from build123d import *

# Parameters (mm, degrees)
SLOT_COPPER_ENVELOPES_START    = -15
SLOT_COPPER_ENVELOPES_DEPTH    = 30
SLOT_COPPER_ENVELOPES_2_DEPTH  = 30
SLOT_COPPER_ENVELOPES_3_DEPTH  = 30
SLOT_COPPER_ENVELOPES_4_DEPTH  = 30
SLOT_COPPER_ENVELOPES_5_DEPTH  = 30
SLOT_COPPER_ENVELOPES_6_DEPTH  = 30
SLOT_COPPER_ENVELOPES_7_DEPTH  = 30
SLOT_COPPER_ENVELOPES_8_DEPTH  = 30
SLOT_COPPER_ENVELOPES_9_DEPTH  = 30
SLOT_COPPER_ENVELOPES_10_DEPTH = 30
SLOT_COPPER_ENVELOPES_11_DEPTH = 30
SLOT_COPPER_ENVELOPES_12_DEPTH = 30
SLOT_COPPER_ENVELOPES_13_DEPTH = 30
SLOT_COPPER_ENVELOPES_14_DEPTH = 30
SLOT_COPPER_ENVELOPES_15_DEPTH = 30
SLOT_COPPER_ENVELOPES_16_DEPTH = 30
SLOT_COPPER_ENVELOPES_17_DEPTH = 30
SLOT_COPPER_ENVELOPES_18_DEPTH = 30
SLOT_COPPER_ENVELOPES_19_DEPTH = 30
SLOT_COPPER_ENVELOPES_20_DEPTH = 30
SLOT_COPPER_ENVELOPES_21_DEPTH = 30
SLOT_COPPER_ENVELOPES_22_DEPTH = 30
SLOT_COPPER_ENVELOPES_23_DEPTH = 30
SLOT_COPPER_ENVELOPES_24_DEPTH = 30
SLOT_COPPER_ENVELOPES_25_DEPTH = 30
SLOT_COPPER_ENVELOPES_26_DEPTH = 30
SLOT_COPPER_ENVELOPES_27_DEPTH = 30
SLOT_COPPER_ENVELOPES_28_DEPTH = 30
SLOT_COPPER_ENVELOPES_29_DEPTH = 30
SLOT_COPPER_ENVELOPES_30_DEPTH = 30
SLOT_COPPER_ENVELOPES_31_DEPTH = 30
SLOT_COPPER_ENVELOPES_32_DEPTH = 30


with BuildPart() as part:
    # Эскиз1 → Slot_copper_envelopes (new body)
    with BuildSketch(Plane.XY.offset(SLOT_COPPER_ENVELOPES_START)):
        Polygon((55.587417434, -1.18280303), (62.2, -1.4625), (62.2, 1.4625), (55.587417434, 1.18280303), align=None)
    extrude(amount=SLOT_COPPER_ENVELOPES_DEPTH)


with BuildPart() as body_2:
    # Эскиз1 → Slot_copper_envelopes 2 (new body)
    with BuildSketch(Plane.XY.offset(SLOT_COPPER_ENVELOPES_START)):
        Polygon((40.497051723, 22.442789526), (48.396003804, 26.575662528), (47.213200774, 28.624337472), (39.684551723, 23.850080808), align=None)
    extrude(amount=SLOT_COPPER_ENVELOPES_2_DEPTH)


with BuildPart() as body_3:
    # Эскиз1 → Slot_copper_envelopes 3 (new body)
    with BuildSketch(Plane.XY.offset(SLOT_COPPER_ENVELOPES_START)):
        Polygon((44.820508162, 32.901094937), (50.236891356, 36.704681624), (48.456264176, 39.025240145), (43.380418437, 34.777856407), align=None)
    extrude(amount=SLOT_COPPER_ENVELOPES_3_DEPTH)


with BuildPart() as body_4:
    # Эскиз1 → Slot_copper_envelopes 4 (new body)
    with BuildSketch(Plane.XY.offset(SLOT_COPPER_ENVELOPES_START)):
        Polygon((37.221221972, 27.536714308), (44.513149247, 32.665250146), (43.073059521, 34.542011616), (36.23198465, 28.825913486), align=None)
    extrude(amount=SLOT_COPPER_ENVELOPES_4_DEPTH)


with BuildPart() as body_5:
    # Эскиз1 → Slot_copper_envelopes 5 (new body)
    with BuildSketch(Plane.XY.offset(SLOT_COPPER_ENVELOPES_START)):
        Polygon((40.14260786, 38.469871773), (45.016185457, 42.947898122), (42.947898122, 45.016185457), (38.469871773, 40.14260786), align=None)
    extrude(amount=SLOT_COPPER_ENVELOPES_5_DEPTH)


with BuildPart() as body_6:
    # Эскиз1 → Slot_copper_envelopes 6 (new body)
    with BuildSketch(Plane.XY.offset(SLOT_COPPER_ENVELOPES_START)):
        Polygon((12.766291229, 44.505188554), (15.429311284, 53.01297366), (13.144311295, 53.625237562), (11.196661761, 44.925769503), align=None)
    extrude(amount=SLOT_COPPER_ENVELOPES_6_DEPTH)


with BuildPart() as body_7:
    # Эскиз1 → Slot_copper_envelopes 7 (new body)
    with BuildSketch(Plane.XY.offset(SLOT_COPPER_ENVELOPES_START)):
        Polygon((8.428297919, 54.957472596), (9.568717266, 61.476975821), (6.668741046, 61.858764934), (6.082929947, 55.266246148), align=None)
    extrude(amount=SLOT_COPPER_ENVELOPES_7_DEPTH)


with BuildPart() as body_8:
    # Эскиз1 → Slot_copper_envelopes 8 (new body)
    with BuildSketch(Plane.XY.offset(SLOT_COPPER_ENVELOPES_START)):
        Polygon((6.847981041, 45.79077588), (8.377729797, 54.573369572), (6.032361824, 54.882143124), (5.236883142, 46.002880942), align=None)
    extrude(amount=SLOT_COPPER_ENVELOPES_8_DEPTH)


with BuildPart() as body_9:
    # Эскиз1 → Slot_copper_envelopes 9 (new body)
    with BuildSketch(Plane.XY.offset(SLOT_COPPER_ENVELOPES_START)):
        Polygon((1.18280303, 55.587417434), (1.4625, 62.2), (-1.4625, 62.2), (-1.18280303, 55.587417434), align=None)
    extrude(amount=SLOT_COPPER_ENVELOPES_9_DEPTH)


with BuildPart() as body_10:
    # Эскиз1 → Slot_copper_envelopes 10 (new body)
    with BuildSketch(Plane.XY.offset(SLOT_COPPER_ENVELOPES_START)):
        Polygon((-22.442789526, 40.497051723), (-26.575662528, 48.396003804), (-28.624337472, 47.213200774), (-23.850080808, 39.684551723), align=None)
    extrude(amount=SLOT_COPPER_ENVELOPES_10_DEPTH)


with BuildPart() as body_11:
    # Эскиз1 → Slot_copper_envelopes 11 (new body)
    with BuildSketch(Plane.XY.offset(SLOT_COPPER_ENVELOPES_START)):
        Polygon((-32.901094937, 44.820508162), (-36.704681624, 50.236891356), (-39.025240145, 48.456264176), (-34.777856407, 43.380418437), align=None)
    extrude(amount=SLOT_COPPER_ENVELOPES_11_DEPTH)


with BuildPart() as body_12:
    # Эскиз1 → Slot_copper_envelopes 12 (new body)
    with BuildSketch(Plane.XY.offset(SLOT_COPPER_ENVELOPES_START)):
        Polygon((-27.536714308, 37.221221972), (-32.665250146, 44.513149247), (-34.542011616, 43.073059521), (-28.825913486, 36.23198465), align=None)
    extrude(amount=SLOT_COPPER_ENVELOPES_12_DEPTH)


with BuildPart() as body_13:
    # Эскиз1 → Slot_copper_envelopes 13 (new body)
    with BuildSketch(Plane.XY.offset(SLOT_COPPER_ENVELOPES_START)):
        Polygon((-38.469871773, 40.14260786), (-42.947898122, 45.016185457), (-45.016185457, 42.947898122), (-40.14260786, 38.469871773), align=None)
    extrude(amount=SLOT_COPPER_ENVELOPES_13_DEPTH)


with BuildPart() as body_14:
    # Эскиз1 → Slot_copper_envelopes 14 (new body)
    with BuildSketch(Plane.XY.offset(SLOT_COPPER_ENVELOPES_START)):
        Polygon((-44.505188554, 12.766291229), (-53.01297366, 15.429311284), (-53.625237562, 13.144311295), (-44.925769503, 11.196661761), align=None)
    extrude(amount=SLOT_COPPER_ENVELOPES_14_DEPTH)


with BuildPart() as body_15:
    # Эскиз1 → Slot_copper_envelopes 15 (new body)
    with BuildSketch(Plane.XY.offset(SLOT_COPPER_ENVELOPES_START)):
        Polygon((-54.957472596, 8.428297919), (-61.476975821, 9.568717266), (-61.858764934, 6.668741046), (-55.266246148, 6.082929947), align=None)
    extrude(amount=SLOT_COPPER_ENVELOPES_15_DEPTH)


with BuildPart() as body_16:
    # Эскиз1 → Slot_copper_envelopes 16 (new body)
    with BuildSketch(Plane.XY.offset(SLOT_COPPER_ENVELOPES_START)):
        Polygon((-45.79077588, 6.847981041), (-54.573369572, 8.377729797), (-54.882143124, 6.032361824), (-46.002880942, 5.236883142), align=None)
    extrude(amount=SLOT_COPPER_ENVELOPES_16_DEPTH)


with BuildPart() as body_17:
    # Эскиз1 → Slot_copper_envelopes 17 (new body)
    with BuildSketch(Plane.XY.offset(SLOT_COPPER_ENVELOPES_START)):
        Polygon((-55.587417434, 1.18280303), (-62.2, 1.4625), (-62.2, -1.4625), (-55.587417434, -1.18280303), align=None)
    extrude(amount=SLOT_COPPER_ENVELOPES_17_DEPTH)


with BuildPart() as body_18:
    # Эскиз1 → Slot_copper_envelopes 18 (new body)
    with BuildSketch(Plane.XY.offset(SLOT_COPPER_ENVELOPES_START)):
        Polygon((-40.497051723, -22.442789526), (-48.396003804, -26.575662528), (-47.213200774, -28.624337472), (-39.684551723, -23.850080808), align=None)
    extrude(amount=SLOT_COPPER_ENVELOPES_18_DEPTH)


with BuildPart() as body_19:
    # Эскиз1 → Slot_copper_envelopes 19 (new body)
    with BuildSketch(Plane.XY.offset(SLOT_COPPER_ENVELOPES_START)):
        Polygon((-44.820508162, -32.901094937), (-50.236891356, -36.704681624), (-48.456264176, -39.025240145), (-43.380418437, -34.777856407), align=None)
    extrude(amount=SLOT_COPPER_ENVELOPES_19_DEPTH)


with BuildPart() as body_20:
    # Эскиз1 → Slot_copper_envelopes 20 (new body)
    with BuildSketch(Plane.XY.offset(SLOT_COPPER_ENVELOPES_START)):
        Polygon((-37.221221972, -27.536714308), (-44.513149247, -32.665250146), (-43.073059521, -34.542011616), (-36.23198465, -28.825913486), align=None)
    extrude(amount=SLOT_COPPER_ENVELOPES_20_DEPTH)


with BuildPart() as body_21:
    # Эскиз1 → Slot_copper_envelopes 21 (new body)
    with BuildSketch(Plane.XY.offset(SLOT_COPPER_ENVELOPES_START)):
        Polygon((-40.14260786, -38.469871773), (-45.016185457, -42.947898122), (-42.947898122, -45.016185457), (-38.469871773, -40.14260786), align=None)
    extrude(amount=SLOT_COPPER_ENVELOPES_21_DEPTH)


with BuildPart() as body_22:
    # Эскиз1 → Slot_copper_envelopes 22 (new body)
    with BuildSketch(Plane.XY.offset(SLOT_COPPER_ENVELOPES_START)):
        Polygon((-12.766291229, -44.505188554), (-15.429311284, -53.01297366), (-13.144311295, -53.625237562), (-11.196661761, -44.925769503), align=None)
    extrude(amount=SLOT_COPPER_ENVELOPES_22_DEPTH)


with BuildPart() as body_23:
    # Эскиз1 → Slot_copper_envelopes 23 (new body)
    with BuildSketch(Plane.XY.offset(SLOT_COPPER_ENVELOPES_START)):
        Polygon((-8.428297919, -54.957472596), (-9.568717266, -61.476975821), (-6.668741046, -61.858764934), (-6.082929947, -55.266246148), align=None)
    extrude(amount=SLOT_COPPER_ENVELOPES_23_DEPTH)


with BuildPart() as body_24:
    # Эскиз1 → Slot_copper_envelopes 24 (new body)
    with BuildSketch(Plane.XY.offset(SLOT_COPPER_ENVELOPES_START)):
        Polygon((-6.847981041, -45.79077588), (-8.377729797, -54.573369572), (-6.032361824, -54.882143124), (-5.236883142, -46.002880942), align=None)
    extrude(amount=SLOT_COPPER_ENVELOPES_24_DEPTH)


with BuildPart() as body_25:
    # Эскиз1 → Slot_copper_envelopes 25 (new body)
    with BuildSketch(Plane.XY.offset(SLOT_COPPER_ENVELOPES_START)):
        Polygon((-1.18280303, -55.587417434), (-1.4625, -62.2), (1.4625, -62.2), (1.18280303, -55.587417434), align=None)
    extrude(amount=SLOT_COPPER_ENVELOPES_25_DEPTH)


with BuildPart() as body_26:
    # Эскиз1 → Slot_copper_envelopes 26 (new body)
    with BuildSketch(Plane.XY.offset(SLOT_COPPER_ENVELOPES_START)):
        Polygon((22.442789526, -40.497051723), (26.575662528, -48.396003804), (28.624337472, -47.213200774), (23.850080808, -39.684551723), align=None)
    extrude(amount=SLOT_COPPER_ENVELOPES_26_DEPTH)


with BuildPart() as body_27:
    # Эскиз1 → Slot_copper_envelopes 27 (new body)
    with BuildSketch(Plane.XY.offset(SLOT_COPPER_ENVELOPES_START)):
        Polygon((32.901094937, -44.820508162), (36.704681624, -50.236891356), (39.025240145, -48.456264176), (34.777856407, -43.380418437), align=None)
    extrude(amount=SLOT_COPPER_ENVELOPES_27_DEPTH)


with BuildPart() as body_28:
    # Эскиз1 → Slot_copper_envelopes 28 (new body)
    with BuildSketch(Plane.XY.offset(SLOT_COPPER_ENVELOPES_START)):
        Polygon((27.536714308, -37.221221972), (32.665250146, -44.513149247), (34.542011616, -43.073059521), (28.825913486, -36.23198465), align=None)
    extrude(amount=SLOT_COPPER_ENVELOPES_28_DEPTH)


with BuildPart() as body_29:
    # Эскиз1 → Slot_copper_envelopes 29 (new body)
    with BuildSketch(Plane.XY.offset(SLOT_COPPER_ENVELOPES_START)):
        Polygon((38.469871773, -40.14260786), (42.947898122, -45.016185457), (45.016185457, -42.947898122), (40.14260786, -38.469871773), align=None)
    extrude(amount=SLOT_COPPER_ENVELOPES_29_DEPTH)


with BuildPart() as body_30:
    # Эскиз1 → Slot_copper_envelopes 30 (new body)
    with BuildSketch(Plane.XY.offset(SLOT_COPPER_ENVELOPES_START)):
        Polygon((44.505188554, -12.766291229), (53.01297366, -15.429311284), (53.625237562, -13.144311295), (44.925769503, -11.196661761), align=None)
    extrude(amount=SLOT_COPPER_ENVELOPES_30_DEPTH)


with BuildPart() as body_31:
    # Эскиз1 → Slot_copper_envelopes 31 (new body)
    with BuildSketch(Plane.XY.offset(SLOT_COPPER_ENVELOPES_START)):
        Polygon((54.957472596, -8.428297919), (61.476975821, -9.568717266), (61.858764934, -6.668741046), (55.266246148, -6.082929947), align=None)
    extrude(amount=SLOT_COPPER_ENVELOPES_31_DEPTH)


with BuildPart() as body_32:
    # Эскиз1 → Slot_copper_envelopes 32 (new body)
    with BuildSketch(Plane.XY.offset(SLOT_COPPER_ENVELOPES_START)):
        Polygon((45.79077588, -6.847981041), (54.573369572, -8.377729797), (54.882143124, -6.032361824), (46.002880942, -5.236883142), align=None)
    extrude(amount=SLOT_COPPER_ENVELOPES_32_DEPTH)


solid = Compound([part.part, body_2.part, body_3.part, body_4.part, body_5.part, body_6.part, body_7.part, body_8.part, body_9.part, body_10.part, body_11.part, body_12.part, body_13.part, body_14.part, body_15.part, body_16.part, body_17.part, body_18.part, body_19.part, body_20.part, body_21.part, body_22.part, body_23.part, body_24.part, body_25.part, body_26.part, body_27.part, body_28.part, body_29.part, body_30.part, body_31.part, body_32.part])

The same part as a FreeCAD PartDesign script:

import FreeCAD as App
import Part
import Sketcher
from FreeCAD import Vector
Q = App.Units.Quantity


def add_polygon(sketch, points):
    """Adds a closed chain of lines whose ends are joined by coincident constraints."""
    first, n = sketch.GeometryCount, len(points)
    for a, b in zip(points, points[1:] + points[:1]):
        sketch.addGeometry(Part.LineSegment(App.Vector(*a, 0), App.Vector(*b, 0)), False)
    for i in range(n):
        sketch.addConstraint(Sketcher.Constraint("Coincident", first + i, 2, first + (i + 1) % n, 1))

doc = App.newDocument("Part")
params = doc.addObject("Spreadsheet::Sheet", "Params")
for row, (alias, value) in enumerate([
    ("pad1_length", "30 mm"),
    ("pad2_length", "30 mm"),
    ("pad3_length", "30 mm"),
    ("pad4_length", "30 mm"),
    ("pad5_length", "30 mm"),
    ("pad6_length", "30 mm"),
    ("pad7_length", "30 mm"),
    ("pad8_length", "30 mm"),
    ("pad9_length", "30 mm"),
    ("pad10_length", "30 mm"),
    ("pad11_length", "30 mm"),
    ("pad12_length", "30 mm"),
    ("pad13_length", "30 mm"),
    ("pad14_length", "30 mm"),
    ("pad15_length", "30 mm"),
    ("pad16_length", "30 mm"),
    ("pad17_length", "30 mm"),
    ("pad18_length", "30 mm"),
    ("pad19_length", "30 mm"),
    ("pad20_length", "30 mm"),
    ("pad21_length", "30 mm"),
    ("pad22_length", "30 mm"),
    ("pad23_length", "30 mm"),
    ("pad24_length", "30 mm"),
    ("pad25_length", "30 mm"),
    ("pad26_length", "30 mm"),
    ("pad27_length", "30 mm"),
    ("pad28_length", "30 mm"),
    ("pad29_length", "30 mm"),
    ("pad30_length", "30 mm"),
    ("pad31_length", "30 mm"),
    ("pad32_length", "30 mm"),
], start=1):
    params.set(f"A{row}", alias)
    params.set(f"B{row}", "=" + value)
    params.setAlias(f"B{row}", alias)

body = doc.addObject("PartDesign::Body", "Body")

# Sketch on XY plane
sketch1 = body.newObject("Sketcher::SketchObject", "Sketch")
sketch1.AttachmentSupport = (doc.getObject("XY_Plane"), [""])
sketch1.MapMode = "FlatFace"
sketch1.AttachmentOffset = App.Placement(Vector(0, 0, -15), App.Rotation())
add_polygon(sketch1, [(55.587417, -1.182803), (62.2, -1.4625), (62.2, 1.4625), (55.587417, 1.182803)])  # lines 0-3
sketch1.addConstraint(Sketcher.Constraint("Vertical", 1))
sketch1.addConstraint(Sketcher.Constraint("Vertical", 3))
sketch1.addConstraint(Sketcher.Constraint("Equal", 0, 2))
sketch1.addConstraint(Sketcher.Constraint("DistanceX", -1, 1, 0, 2, 62.2))
sketch1.addConstraint(Sketcher.Constraint("DistanceY", 1, 1, 1, 2, 2.925))
sketch1.addConstraint(Sketcher.Constraint("DistanceY", 0, 2, -1, 1, 1.4625))
sketch1.addConstraint(Sketcher.Constraint("DistanceY", 3, 2, 3, 1, 2.365606))
sketch1.addConstraint(Sketcher.Constraint("Distance", 0, 6.618495))
pad1 = body.newObject("PartDesign::Pad", "Pad")
pad1.Profile = sketch1
pad1.setExpression("Length", "Params.pad1_length")
body2 = doc.addObject("PartDesign::Body", "Body001")

# Sketch on XY plane
sketch2 = body2.newObject("Sketcher::SketchObject", "Sketch001")
sketch2.AttachmentSupport = (doc.getObject("XY_Plane001"), [""])
sketch2.MapMode = "FlatFace"
sketch2.AttachmentOffset = App.Placement(Vector(0, 0, -15), App.Rotation())
add_polygon(sketch2, [(40.497052, 22.44279), (48.396004, 26.575663), (47.213201, 28.624337), (39.684552, 23.850081)])  # lines 0-3
sketch2.addConstraint(Sketcher.Constraint("Parallel", 1, 3))
sketch2.addConstraint(Sketcher.Constraint("Equal", 0, 2))
sketch2.addConstraint(Sketcher.Constraint("Angle", 1, Q("120 deg")))
sketch2.addConstraint(Sketcher.Constraint("Distance", 3, 1.625))
sketch2.addConstraint(Sketcher.Constraint("DistanceX", -1, 1, 1, 2, 47.213201))
sketch2.addConstraint(Sketcher.Constraint("DistanceX", -1, 1, 2, 2, 39.684552))
sketch2.addConstraint(Sketcher.Constraint("DistanceY", -1, 1, 2, 2, 23.850081))
sketch2.addConstraint(Sketcher.Constraint("DistanceY", 2, 2, 0, 2, 2.725582))
pad2 = body2.newObject("PartDesign::Pad", "Pad001")
pad2.Profile = sketch2
pad2.setExpression("Length", "Params.pad2_length")
body3 = doc.addObject("PartDesign::Body", "Body002")

# Sketch on XY plane
sketch3 = body3.newObject("Sketcher::SketchObject", "Sketch002")
sketch3.AttachmentSupport = (doc.getObject("XY_Plane002"), [""])
sketch3.MapMode = "FlatFace"
sketch3.AttachmentOffset = App.Placement(Vector(0, 0, -15), App.Rotation())
add_polygon(sketch3, [(44.820508, 32.901095), (50.236891, 36.704682), (48.456264, 39.02524), (43.380418, 34.777856)])  # lines 0-3
sketch3.addConstraint(Sketcher.Constraint("Parallel", 1, 3))
sketch3.addConstraint(Sketcher.Constraint("Equal", 0, 2))
sketch3.addConstraint(Sketcher.Constraint("Angle", 1, Q("127.5 deg")))
sketch3.addConstraint(Sketcher.Constraint("Distance", 1, 2.925))
sketch3.addConstraint(Sketcher.Constraint("DistanceX", -1, 1, 0, 2, 50.236891))
sketch3.addConstraint(Sketcher.Constraint("DistanceY", -1, 1, 0, 2, 36.704682))
sketch3.addConstraint(Sketcher.Constraint("DistanceX", -1, 1, 2, 2, 43.380418))
sketch3.addConstraint(Sketcher.Constraint("DistanceX", -1, 1, 3, 2, 44.820508))
pad3 = body3.newObject("PartDesign::Pad", "Pad002")
pad3.Profile = sketch3
pad3.setExpression("Length", "Params.pad3_length")
body4 = doc.addObject("PartDesign::Body", "Body003")

# Sketch on XY plane
sketch4 = body4.newObject("Sketcher::SketchObject", "Sketch003")
sketch4.AttachmentSupport = (doc.getObject("XY_Plane003"), [""])
sketch4.MapMode = "FlatFace"
sketch4.AttachmentOffset = App.Placement(Vector(0, 0, -15), App.Rotation())
add_polygon(sketch4, [(37.221222, 27.536714), (44.513149, 32.66525), (43.07306, 34.542012), (36.231985, 28.825913)])  # lines 0-3
sketch4.addConstraint(Sketcher.Constraint("Parallel", 1, 3))
sketch4.addConstraint(Sketcher.Constraint("Equal", 0, 2))
sketch4.addConstraint(Sketcher.Constraint("Angle", 1, Q("127.5 deg")))
sketch4.addConstraint(Sketcher.Constraint("Distance", 3, 1.625))
sketch4.addConstraint(Sketcher.Constraint("DistanceY", 2, 2, 1, 2, 5.716098))
sketch4.addConstraint(Sketcher.Constraint("DistanceX", -1, 1, 0, 2, 44.513149))
sketch4.addConstraint(Sketcher.Constraint("DistanceY", -1, 1, 0, 2, 32.66525))
sketch4.addConstraint(Sketcher.Constraint("DistanceX", -1, 1, 1, 2, 43.07306))
pad4 = body4.newObject("PartDesign::Pad", "Pad003")
pad4.Profile = sketch4
pad4.setExpression("Length", "Params.pad4_length")
body5 = doc.addObject("PartDesign::Body", "Body004")

# Sketch on XY plane
sketch5 = body5.newObject("Sketcher::SketchObject", "Sketch004")
sketch5.AttachmentSupport = (doc.getObject("XY_Plane004"), [""])
sketch5.MapMode = "FlatFace"
sketch5.AttachmentOffset = App.Placement(Vector(0, 0, -15), App.Rotation())
add_polygon(sketch5, [(40.142608, 38.469872), (45.016185, 42.947898), (42.947898, 45.016185), (38.469872, 40.142608)])  # lines 0-3
sketch5.addConstraint(Sketcher.Constraint("Parallel", 1, 3))
sketch5.addConstraint(Sketcher.Constraint("Equal", 0, 2))
sketch5.addConstraint(Sketcher.Constraint("Angle", 1, Q("135 deg")))
sketch5.addConstraint(Sketcher.Constraint("Distance", 1, 2.925))
sketch5.addConstraint(Sketcher.Constraint("DistanceY", -1, 1, 0, 2, 42.947898))
sketch5.addConstraint(Sketcher.Constraint("DistanceX", -1, 1, 1, 2, 42.947898))
sketch5.addConstraint(Sketcher.Constraint("DistanceX", -1, 1, 2, 2, 38.469872))
sketch5.addConstraint(Sketcher.Constraint("DistanceY", 2, 2, 0, 2, 2.80529))
pad5 = body5.newObject("PartDesign::Pad", "Pad004")
pad5.Profile = sketch5
pad5.setExpression("Length", "Params.pad5_length")
body6 = doc.addObject("PartDesign::Body", "Body005")

# Sketch on XY plane
sketch6 = body6.newObject("Sketcher::SketchObject", "Sketch005")
sketch6.AttachmentSupport = (doc.getObject("XY_Plane005"), [""])
sketch6.MapMode = "FlatFace"
sketch6.AttachmentOffset = App.Placement(Vector(0, 0, -15), App.Rotation())
add_polygon(sketch6, [(12.766291, 44.505189), (15.429311, 53.012974), (13.144311, 53.625238), (11.196662, 44.92577)])  # lines 0-3
sketch6.addConstraint(Sketcher.Constraint("Parallel", 1, 3))
sketch6.addConstraint(Sketcher.Constraint("Equal", 0, 2))
sketch6.addConstraint(Sketcher.Constraint("Angle", 1, Q("165 deg")))
sketch6.addConstraint(Sketcher.Constraint("Distance", 3, 1.625))
sketch6.addConstraint(Sketcher.Constraint("DistanceX", 1, 2, 0, 2, 2.285))
sketch6.addConstraint(Sketcher.Constraint("DistanceX", -1, 1, 0, 2, 15.429311))
sketch6.addConstraint(Sketcher.Constraint("DistanceX", -1, 1, 2, 2, 11.196662))
sketch6.addConstraint(Sketcher.Constraint("DistanceY", -1, 1, 2, 2, 44.92577))
pad6 = body6.newObject("PartDesign::Pad", "Pad005")
pad6.Profile = sketch6
pad6.setExpression("Length", "Params.pad6_length")
body7 = doc.addObject("PartDesign::Body", "Body006")

# Sketch on XY plane
sketch7 = body7.newObject("Sketcher::SketchObject", "Sketch006")
sketch7.AttachmentSupport = (doc.getObject("XY_Plane006"), [""])
sketch7.MapMode = "FlatFace"
sketch7.AttachmentOffset = App.Placement(Vector(0, 0, -15), App.Rotation())
add_polygon(sketch7, [(8.428298, 54.957473), (9.568717, 61.476976), (6.668741, 61.858765), (6.08293, 55.266246)])  # lines 0-3
sketch7.addConstraint(Sketcher.Constraint("Parallel", 1, 3))
sketch7.addConstraint(Sketcher.Constraint("Equal", 0, 2))
sketch7.addConstraint(Sketcher.Constraint("Angle", 1, Q("172.5 deg")))
sketch7.addConstraint(Sketcher.Constraint("Distance", 1, 2.925))
sketch7.addConstraint(Sketcher.Constraint("DistanceX", -1, 1, 1, 2, 6.668741))
sketch7.addConstraint(Sketcher.Constraint("DistanceX", -1, 1, 2, 2, 6.08293))
sketch7.addConstraint(Sketcher.Constraint("DistanceY", 2, 2, 1, 2, 6.592519))
sketch7.addConstraint(Sketcher.Constraint("DistanceY", -1, 1, 0, 2, 61.476976))
pad7 = body7.newObject("PartDesign::Pad", "Pad006")
pad7.Profile = sketch7
pad7.setExpression("Length", "Params.pad7_length")
body8 = doc.addObject("PartDesign::Body", "Body007")

# Sketch on XY plane
sketch8 = body8.newObject("Sketcher::SketchObject", "Sketch007")
sketch8.AttachmentSupport = (doc.getObject("XY_Plane007"), [""])
sketch8.MapMode = "FlatFace"
sketch8.AttachmentOffset = App.Placement(Vector(0, 0, -15), App.Rotation())
add_polygon(sketch8, [(6.847981, 45.790776), (8.37773, 54.57337), (6.032362, 54.882143), (5.236883, 46.002881)])  # lines 0-3
sketch8.addConstraint(Sketcher.Constraint("Parallel", 1, 3))
sketch8.addConstraint(Sketcher.Constraint("Equal", 0, 2))
sketch8.addConstraint(Sketcher.Constraint("Angle", 1, Q("172.5 deg")))
sketch8.addConstraint(Sketcher.Constraint("Distance", 3, 1.625))
sketch8.addConstraint(Sketcher.Constraint("DistanceX", -1, 1, 0, 2, 8.37773))
sketch8.addConstraint(Sketcher.Constraint("DistanceY", -1, 1, 0, 2, 54.57337))
sketch8.addConstraint(Sketcher.Constraint("DistanceX", -1, 1, 1, 2, 6.032362))
sketch8.addConstraint(Sketcher.Constraint("DistanceY", -1, 1, 2, 2, 46.002881))
pad8 = body8.newObject("PartDesign::Pad", "Pad007")
pad8.Profile = sketch8
pad8.setExpression("Length", "Params.pad8_length")
body9 = doc.addObject("PartDesign::Body", "Body008")

# Sketch on XY plane
sketch9 = body9.newObject("Sketcher::SketchObject", "Sketch008")
sketch9.AttachmentSupport = (doc.getObject("XY_Plane008"), [""])
sketch9.MapMode = "FlatFace"
sketch9.AttachmentOffset = App.Placement(Vector(0, 0, -15), App.Rotation())
add_polygon(sketch9, [(1.182803, 55.587417), (1.4625, 62.2), (-1.4625, 62.2), (-1.182803, 55.587417)])  # lines 0-3
sketch9.addConstraint(Sketcher.Constraint("Horizontal", 1))
sketch9.addConstraint(Sketcher.Constraint("Horizontal", 3))
sketch9.addConstraint(Sketcher.Constraint("Equal", 0, 2))
sketch9.addConstraint(Sketcher.Constraint("DistanceY", -1, 1, 0, 2, 62.2))
sketch9.addConstraint(Sketcher.Constraint("DistanceX", 1, 2, 1, 1, 2.925))
sketch9.addConstraint(Sketcher.Constraint("DistanceX", -1, 1, 0, 2, 1.4625))
sketch9.addConstraint(Sketcher.Constraint("DistanceX", 3, 1, 3, 2, 2.365606))
sketch9.addConstraint(Sketcher.Constraint("Distance", 0, 6.618495))
pad9 = body9.newObject("PartDesign::Pad", "Pad008")
pad9.Profile = sketch9
pad9.setExpression("Length", "Params.pad9_length")
body10 = doc.addObject("PartDesign::Body", "Body009")

# Sketch on XY plane
sketch10 = body10.newObject("Sketcher::SketchObject", "Sketch009")
sketch10.AttachmentSupport = (doc.getObject("XY_Plane009"), [""])
sketch10.MapMode = "FlatFace"
sketch10.AttachmentOffset = App.Placement(Vector(0, 0, -15), App.Rotation())
add_polygon(sketch10, [(-22.44279, 40.497052), (-26.575663, 48.396004), (-28.624337, 47.213201), (-23.850081, 39.684552)])  # lines 0-3
sketch10.addConstraint(Sketcher.Constraint("Parallel", 1, 3))
sketch10.addConstraint(Sketcher.Constraint("Equal", 0, 2))
sketch10.addConstraint(Sketcher.Constraint("Angle", 1, Q("-150 deg")))
sketch10.addConstraint(Sketcher.Constraint("Distance", 3, 1.625))
sketch10.addConstraint(Sketcher.Constraint("DistanceY", -1, 1, 1, 2, 47.213201))
sketch10.addConstraint(Sketcher.Constraint("DistanceX", 2, 2, -1, 1, 23.850081))
sketch10.addConstraint(Sketcher.Constraint("DistanceY", -1, 1, 2, 2, 39.684552))
sketch10.addConstraint(Sketcher.Constraint("DistanceX", 0, 2, 2, 2, 2.725582))
pad10 = body10.newObject("PartDesign::Pad", "Pad009")
pad10.Profile = sketch10
pad10.setExpression("Length", "Params.pad10_length")
body11 = doc.addObject("PartDesign::Body", "Body010")

# Sketch on XY plane
sketch11 = body11.newObject("Sketcher::SketchObject", "Sketch010")
sketch11.AttachmentSupport = (doc.getObject("XY_Plane010"), [""])
sketch11.MapMode = "FlatFace"
sketch11.AttachmentOffset = App.Placement(Vector(0, 0, -15), App.Rotation())
add_polygon(sketch11, [(-32.901095, 44.820508), (-36.704682, 50.236891), (-39.02524, 48.456264), (-34.777856, 43.380418)])  # lines 0-3
sketch11.addConstraint(Sketcher.Constraint("Parallel", 1, 3))
sketch11.addConstraint(Sketcher.Constraint("Equal", 0, 2))
sketch11.addConstraint(Sketcher.Constraint("Angle", 1, Q("-142.5 deg")))
sketch11.addConstraint(Sketcher.Constraint("Distance", 1, 2.925))
sketch11.addConstraint(Sketcher.Constraint("DistanceX", 0, 2, -1, 1, 36.704682))
sketch11.addConstraint(Sketcher.Constraint("DistanceY", -1, 1, 0, 2, 50.236891))
sketch11.addConstraint(Sketcher.Constraint("DistanceY", -1, 1, 2, 2, 43.380418))
sketch11.addConstraint(Sketcher.Constraint("DistanceY", -1, 1, 3, 2, 44.820508))
pad11 = body11.newObject("PartDesign::Pad", "Pad010")
pad11.Profile = sketch11
pad11.setExpression("Length", "Params.pad11_length")
body12 = doc.addObject("PartDesign::Body", "Body011")

# Sketch on XY plane
sketch12 = body12.newObject("Sketcher::SketchObject", "Sketch011")
sketch12.AttachmentSupport = (doc.getObject("XY_Plane011"), [""])
sketch12.MapMode = "FlatFace"
sketch12.AttachmentOffset = App.Placement(Vector(0, 0, -15), App.Rotation())
add_polygon(sketch12, [(-27.536714, 37.221222), (-32.66525, 44.513149), (-34.542012, 43.07306), (-28.825913, 36.231985)])  # lines 0-3
sketch12.addConstraint(Sketcher.Constraint("Parallel", 1, 3))
sketch12.addConstraint(Sketcher.Constraint("Equal", 0, 2))
sketch12.addConstraint(Sketcher.Constraint("Angle", 1, Q("-142.5 deg")))
sketch12.addConstraint(Sketcher.Constraint("Distance", 3, 1.625))
sketch12.addConstraint(Sketcher.Constraint("DistanceX", 1, 2, 2, 2, 5.716098))
sketch12.addConstraint(Sketcher.Constraint("DistanceX", 0, 2, -1, 1, 32.66525))
sketch12.addConstraint(Sketcher.Constraint("DistanceY", -1, 1, 0, 2, 44.513149))
sketch12.addConstraint(Sketcher.Constraint("DistanceX", 1, 2, -1, 1, 34.542012))
pad12 = body12.newObject("PartDesign::Pad", "Pad011")
pad12.Profile = sketch12
pad12.setExpression("Length", "Params.pad12_length")
body13 = doc.addObject("PartDesign::Body", "Body012")

# Sketch on XY plane
sketch13 = body13.newObject("Sketcher::SketchObject", "Sketch012")
sketch13.AttachmentSupport = (doc.getObject("XY_Plane012"), [""])
sketch13.MapMode = "FlatFace"
sketch13.AttachmentOffset = App.Placement(Vector(0, 0, -15), App.Rotation())
add_polygon(sketch13, [(-38.469872, 40.142608), (-42.947898, 45.016185), (-45.016185, 42.947898), (-40.142608, 38.469872)])  # lines 0-3
sketch13.addConstraint(Sketcher.Constraint("Parallel", 1, 3))
sketch13.addConstraint(Sketcher.Constraint("Equal", 0, 2))
sketch13.addConstraint(Sketcher.Constraint("Angle", 1, Q("-135 deg")))
sketch13.addConstraint(Sketcher.Constraint("Distance", 1, 2.925))
sketch13.addConstraint(Sketcher.Constraint("DistanceX", 0, 2, -1, 1, 42.947898))
sketch13.addConstraint(Sketcher.Constraint("DistanceY", -1, 1, 1, 2, 42.947898))
sketch13.addConstraint(Sketcher.Constraint("DistanceY", -1, 1, 2, 2, 38.469872))
sketch13.addConstraint(Sketcher.Constraint("DistanceX", 0, 2, 2, 2, 2.80529))
pad13 = body13.newObject("PartDesign::Pad", "Pad012")
pad13.Profile = sketch13
pad13.setExpression("Length", "Params.pad13_length")
body14 = doc.addObject("PartDesign::Body", "Body013")

# Sketch on XY plane
sketch14 = body14.newObject("Sketcher::SketchObject", "Sketch013")
sketch14.AttachmentSupport = (doc.getObject("XY_Plane013"), [""])
sketch14.MapMode = "FlatFace"
sketch14.AttachmentOffset = App.Placement(Vector(0, 0, -15), App.Rotation())
add_polygon(sketch14, [(-44.505189, 12.766291), (-53.012974, 15.429311), (-53.625238, 13.144311), (-44.92577, 11.196662)])  # lines 0-3
sketch14.addConstraint(Sketcher.Constraint("Parallel", 1, 3))
sketch14.addConstraint(Sketcher.Constraint("Equal", 0, 2))
sketch14.addConstraint(Sketcher.Constraint("Angle", 1, Q("-105 deg")))
sketch14.addConstraint(Sketcher.Constraint("Distance", 3, 1.625))
sketch14.addConstraint(Sketcher.Constraint("DistanceY", 1, 2, 0, 2, 2.285))
sketch14.addConstraint(Sketcher.Constraint("DistanceY", -1, 1, 0, 2, 15.429311))
sketch14.addConstraint(Sketcher.Constraint("DistanceX", 2, 2, -1, 1, 44.92577))
sketch14.addConstraint(Sketcher.Constraint("DistanceY", -1, 1, 2, 2, 11.196662))
pad14 = body14.newObject("PartDesign::Pad", "Pad013")
pad14.Profile = sketch14
pad14.setExpression("Length", "Params.pad14_length")
body15 = doc.addObject("PartDesign::Body", "Body014")

# Sketch on XY plane
sketch15 = body15.newObject("Sketcher::SketchObject", "Sketch014")
sketch15.AttachmentSupport = (doc.getObject("XY_Plane014"), [""])
sketch15.MapMode = "FlatFace"
sketch15.AttachmentOffset = App.Placement(Vector(0, 0, -15), App.Rotation())
add_polygon(sketch15, [(-54.957473, 8.428298), (-61.476976, 9.568717), (-61.858765, 6.668741), (-55.266246, 6.08293)])  # lines 0-3
sketch15.addConstraint(Sketcher.Constraint("Parallel", 1, 3))
sketch15.addConstraint(Sketcher.Constraint("Equal", 0, 2))
sketch15.addConstraint(Sketcher.Constraint("Angle", 1, Q("-97.5 deg")))
sketch15.addConstraint(Sketcher.Constraint("Distance", 1, 2.925))
sketch15.addConstraint(Sketcher.Constraint("DistanceY", -1, 1, 1, 2, 6.668741))
sketch15.addConstraint(Sketcher.Constraint("DistanceY", -1, 1, 2, 2, 6.08293))
sketch15.addConstraint(Sketcher.Constraint("DistanceX", 1, 2, 2, 2, 6.592519))
sketch15.addConstraint(Sketcher.Constraint("DistanceX", 0, 2, -1, 1, 61.476976))
pad15 = body15.newObject("PartDesign::Pad", "Pad014")
pad15.Profile = sketch15
pad15.setExpression("Length", "Params.pad15_length")
body16 = doc.addObject("PartDesign::Body", "Body015")

# Sketch on XY plane
sketch16 = body16.newObject("Sketcher::SketchObject", "Sketch015")
sketch16.AttachmentSupport = (doc.getObject("XY_Plane015"), [""])
sketch16.MapMode = "FlatFace"
sketch16.AttachmentOffset = App.Placement(Vector(0, 0, -15), App.Rotation())
add_polygon(sketch16, [(-45.790776, 6.847981), (-54.57337, 8.37773), (-54.882143, 6.032362), (-46.002881, 5.236883)])  # lines 0-3
sketch16.addConstraint(Sketcher.Constraint("Parallel", 1, 3))
sketch16.addConstraint(Sketcher.Constraint("Equal", 0, 2))
sketch16.addConstraint(Sketcher.Constraint("Angle", 1, Q("-97.5 deg")))
sketch16.addConstraint(Sketcher.Constraint("Distance", 3, 1.625))
sketch16.addConstraint(Sketcher.Constraint("DistanceX", 0, 2, -1, 1, 54.57337))
sketch16.addConstraint(Sketcher.Constraint("DistanceY", -1, 1, 0, 2, 8.37773))
sketch16.addConstraint(Sketcher.Constraint("DistanceY", -1, 1, 1, 2, 6.032362))
sketch16.addConstraint(Sketcher.Constraint("DistanceX", 2, 2, -1, 1, 46.002881))
pad16 = body16.newObject("PartDesign::Pad", "Pad015")
pad16.Profile = sketch16
pad16.setExpression("Length", "Params.pad16_length")
body17 = doc.addObject("PartDesign::Body", "Body016")

# Sketch on XY plane
sketch17 = body17.newObject("Sketcher::SketchObject", "Sketch016")
sketch17.AttachmentSupport = (doc.getObject("XY_Plane016"), [""])
sketch17.MapMode = "FlatFace"
sketch17.AttachmentOffset = App.Placement(Vector(0, 0, -15), App.Rotation())
add_polygon(sketch17, [(-55.587417, 1.182803), (-62.2, 1.4625), (-62.2, -1.4625), (-55.587417, -1.182803)])  # lines 0-3
sketch17.addConstraint(Sketcher.Constraint("Vertical", 1))
sketch17.addConstraint(Sketcher.Constraint("Vertical", 3))
sketch17.addConstraint(Sketcher.Constraint("Equal", 0, 2))
sketch17.addConstraint(Sketcher.Constraint("DistanceX", 0, 2, -1, 1, 62.2))
sketch17.addConstraint(Sketcher.Constraint("DistanceY", 1, 2, 1, 1, 2.925))
sketch17.addConstraint(Sketcher.Constraint("DistanceY", -1, 1, 0, 2, 1.4625))
sketch17.addConstraint(Sketcher.Constraint("DistanceY", 3, 1, 3, 2, 2.365606))
sketch17.addConstraint(Sketcher.Constraint("Distance", 0, 6.618495))
pad17 = body17.newObject("PartDesign::Pad", "Pad016")
pad17.Profile = sketch17
pad17.setExpression("Length", "Params.pad17_length")
body18 = doc.addObject("PartDesign::Body", "Body017")

# Sketch on XY plane
sketch18 = body18.newObject("Sketcher::SketchObject", "Sketch017")
sketch18.AttachmentSupport = (doc.getObject("XY_Plane017"), [""])
sketch18.MapMode = "FlatFace"
sketch18.AttachmentOffset = App.Placement(Vector(0, 0, -15), App.Rotation())
add_polygon(sketch18, [(-40.497052, -22.44279), (-48.396004, -26.575663), (-47.213201, -28.624337), (-39.684552, -23.850081)])  # lines 0-3
sketch18.addConstraint(Sketcher.Constraint("Parallel", 1, 3))
sketch18.addConstraint(Sketcher.Constraint("Equal", 0, 2))
sketch18.addConstraint(Sketcher.Constraint("Angle", 1, Q("-60 deg")))
sketch18.addConstraint(Sketcher.Constraint("Distance", 3, 1.625))
sketch18.addConstraint(Sketcher.Constraint("DistanceX", 1, 2, -1, 1, 47.213201))
sketch18.addConstraint(Sketcher.Constraint("DistanceX", 2, 2, -1, 1, 39.684552))
sketch18.addConstraint(Sketcher.Constraint("DistanceY", 2, 2, -1, 1, 23.850081))
sketch18.addConstraint(Sketcher.Constraint("DistanceY", 0, 2, 2, 2, 2.725582))
pad18 = body18.newObject("PartDesign::Pad", "Pad017")
pad18.Profile = sketch18
pad18.setExpression("Length", "Params.pad18_length")
body19 = doc.addObject("PartDesign::Body", "Body018")

# Sketch on XY plane
sketch19 = body19.newObject("Sketcher::SketchObject", "Sketch018")
sketch19.AttachmentSupport = (doc.getObject("XY_Plane018"), [""])
sketch19.MapMode = "FlatFace"
sketch19.AttachmentOffset = App.Placement(Vector(0, 0, -15), App.Rotation())
add_polygon(sketch19, [(-44.820508, -32.901095), (-50.236891, -36.704682), (-48.456264, -39.02524), (-43.380418, -34.777856)])  # lines 0-3
sketch19.addConstraint(Sketcher.Constraint("Parallel", 1, 3))
sketch19.addConstraint(Sketcher.Constraint("Equal", 0, 2))
sketch19.addConstraint(Sketcher.Constraint("Angle", 1, Q("-52.5 deg")))
sketch19.addConstraint(Sketcher.Constraint("Distance", 1, 2.925))
sketch19.addConstraint(Sketcher.Constraint("DistanceX", 0, 2, -1, 1, 50.236891))
sketch19.addConstraint(Sketcher.Constraint("DistanceY", 0, 2, -1, 1, 36.704682))
sketch19.addConstraint(Sketcher.Constraint("DistanceX", 2, 2, -1, 1, 43.380418))
sketch19.addConstraint(Sketcher.Constraint("DistanceX", 3, 2, -1, 1, 44.820508))
pad19 = body19.newObject("PartDesign::Pad", "Pad018")
pad19.Profile = sketch19
pad19.setExpression("Length", "Params.pad19_length")
body20 = doc.addObject("PartDesign::Body", "Body019")

# Sketch on XY plane
sketch20 = body20.newObject("Sketcher::SketchObject", "Sketch019")
sketch20.AttachmentSupport = (doc.getObject("XY_Plane019"), [""])
sketch20.MapMode = "FlatFace"
sketch20.AttachmentOffset = App.Placement(Vector(0, 0, -15), App.Rotation())
add_polygon(sketch20, [(-37.221222, -27.536714), (-44.513149, -32.66525), (-43.07306, -34.542012), (-36.231985, -28.825913)])  # lines 0-3
sketch20.addConstraint(Sketcher.Constraint("Parallel", 1, 3))
sketch20.addConstraint(Sketcher.Constraint("Equal", 0, 2))
sketch20.addConstraint(Sketcher.Constraint("Angle", 1, Q("-52.5 deg")))
sketch20.addConstraint(Sketcher.Constraint("Distance", 3, 1.625))
sketch20.addConstraint(Sketcher.Constraint("DistanceY", 1, 2, 2, 2, 5.716098))
sketch20.addConstraint(Sketcher.Constraint("DistanceX", 0, 2, -1, 1, 44.513149))
sketch20.addConstraint(Sketcher.Constraint("DistanceY", 0, 2, -1, 1, 32.66525))
sketch20.addConstraint(Sketcher.Constraint("DistanceX", 1, 2, -1, 1, 43.07306))
pad20 = body20.newObject("PartDesign::Pad", "Pad019")
pad20.Profile = sketch20
pad20.setExpression("Length", "Params.pad20_length")
body21 = doc.addObject("PartDesign::Body", "Body020")

# Sketch on XY plane
sketch21 = body21.newObject("Sketcher::SketchObject", "Sketch020")
sketch21.AttachmentSupport = (doc.getObject("XY_Plane020"), [""])
sketch21.MapMode = "FlatFace"
sketch21.AttachmentOffset = App.Placement(Vector(0, 0, -15), App.Rotation())
add_polygon(sketch21, [(-40.142608, -38.469872), (-45.016185, -42.947898), (-42.947898, -45.016185), (-38.469872, -40.142608)])  # lines 0-3
sketch21.addConstraint(Sketcher.Constraint("Parallel", 1, 3))
sketch21.addConstraint(Sketcher.Constraint("Equal", 0, 2))
sketch21.addConstraint(Sketcher.Constraint("Angle", 1, Q("-45 deg")))
sketch21.addConstraint(Sketcher.Constraint("Distance", 1, 2.925))
sketch21.addConstraint(Sketcher.Constraint("DistanceY", 0, 2, -1, 1, 42.947898))
sketch21.addConstraint(Sketcher.Constraint("DistanceX", 1, 2, -1, 1, 42.947898))
sketch21.addConstraint(Sketcher.Constraint("DistanceX", 2, 2, -1, 1, 38.469872))
sketch21.addConstraint(Sketcher.Constraint("DistanceY", 0, 2, 2, 2, 2.80529))
pad21 = body21.newObject("PartDesign::Pad", "Pad020")
pad21.Profile = sketch21
pad21.setExpression("Length", "Params.pad21_length")
body22 = doc.addObject("PartDesign::Body", "Body021")

# Sketch on XY plane
sketch22 = body22.newObject("Sketcher::SketchObject", "Sketch021")
sketch22.AttachmentSupport = (doc.getObject("XY_Plane021"), [""])
sketch22.MapMode = "FlatFace"
sketch22.AttachmentOffset = App.Placement(Vector(0, 0, -15), App.Rotation())
add_polygon(sketch22, [(-12.766291, -44.505189), (-15.429311, -53.012974), (-13.144311, -53.625238), (-11.196662, -44.92577)])  # lines 0-3
sketch22.addConstraint(Sketcher.Constraint("Parallel", 1, 3))
sketch22.addConstraint(Sketcher.Constraint("Equal", 0, 2))
sketch22.addConstraint(Sketcher.Constraint("Angle", 1, Q("-15 deg")))
sketch22.addConstraint(Sketcher.Constraint("Distance", 3, 1.625))
sketch22.addConstraint(Sketcher.Constraint("DistanceX", 0, 2, 1, 2, 2.285))
sketch22.addConstraint(Sketcher.Constraint("DistanceX", 0, 2, -1, 1, 15.429311))
sketch22.addConstraint(Sketcher.Constraint("DistanceX", 2, 2, -1, 1, 11.196662))
sketch22.addConstraint(Sketcher.Constraint("DistanceY", 2, 2, -1, 1, 44.92577))
pad22 = body22.newObject("PartDesign::Pad", "Pad021")
pad22.Profile = sketch22
pad22.setExpression("Length", "Params.pad22_length")
body23 = doc.addObject("PartDesign::Body", "Body022")

# Sketch on XY plane
sketch23 = body23.newObject("Sketcher::SketchObject", "Sketch022")
sketch23.AttachmentSupport = (doc.getObject("XY_Plane022"), [""])
sketch23.MapMode = "FlatFace"
sketch23.AttachmentOffset = App.Placement(Vector(0, 0, -15), App.Rotation())
add_polygon(sketch23, [(-8.428298, -54.957473), (-9.568717, -61.476976), (-6.668741, -61.858765), (-6.08293, -55.266246)])  # lines 0-3
sketch23.addConstraint(Sketcher.Constraint("Parallel", 1, 3))
sketch23.addConstraint(Sketcher.Constraint("Equal", 0, 2))
sketch23.addConstraint(Sketcher.Constraint("Angle", 1, Q("-7.5 deg")))
sketch23.addConstraint(Sketcher.Constraint("Distance", 1, 2.925))
sketch23.addConstraint(Sketcher.Constraint("DistanceX", 1, 2, -1, 1, 6.668741))
sketch23.addConstraint(Sketcher.Constraint("DistanceX", 2, 2, -1, 1, 6.08293))
sketch23.addConstraint(Sketcher.Constraint("DistanceY", 1, 2, 2, 2, 6.592519))
sketch23.addConstraint(Sketcher.Constraint("DistanceY", 0, 2, -1, 1, 61.476976))
pad23 = body23.newObject("PartDesign::Pad", "Pad022")
pad23.Profile = sketch23
pad23.setExpression("Length", "Params.pad23_length")
body24 = doc.addObject("PartDesign::Body", "Body023")

# Sketch on XY plane
sketch24 = body24.newObject("Sketcher::SketchObject", "Sketch023")
sketch24.AttachmentSupport = (doc.getObject("XY_Plane023"), [""])
sketch24.MapMode = "FlatFace"
sketch24.AttachmentOffset = App.Placement(Vector(0, 0, -15), App.Rotation())
add_polygon(sketch24, [(-6.847981, -45.790776), (-8.37773, -54.57337), (-6.032362, -54.882143), (-5.236883, -46.002881)])  # lines 0-3
sketch24.addConstraint(Sketcher.Constraint("Parallel", 1, 3))
sketch24.addConstraint(Sketcher.Constraint("Equal", 0, 2))
sketch24.addConstraint(Sketcher.Constraint("Angle", 1, Q("-7.5 deg")))
sketch24.addConstraint(Sketcher.Constraint("Distance", 3, 1.625))
sketch24.addConstraint(Sketcher.Constraint("DistanceX", 0, 2, -1, 1, 8.37773))
sketch24.addConstraint(Sketcher.Constraint("DistanceY", 0, 2, -1, 1, 54.57337))
sketch24.addConstraint(Sketcher.Constraint("DistanceX", 1, 2, -1, 1, 6.032362))
sketch24.addConstraint(Sketcher.Constraint("DistanceY", 2, 2, -1, 1, 46.002881))
pad24 = body24.newObject("PartDesign::Pad", "Pad023")
pad24.Profile = sketch24
pad24.setExpression("Length", "Params.pad24_length")
body25 = doc.addObject("PartDesign::Body", "Body024")

# Sketch on XY plane
sketch25 = body25.newObject("Sketcher::SketchObject", "Sketch024")
sketch25.AttachmentSupport = (doc.getObject("XY_Plane024"), [""])
sketch25.MapMode = "FlatFace"
sketch25.AttachmentOffset = App.Placement(Vector(0, 0, -15), App.Rotation())
add_polygon(sketch25, [(-1.182803, -55.587417), (-1.4625, -62.2), (1.4625, -62.2), (1.182803, -55.587417)])  # lines 0-3
sketch25.addConstraint(Sketcher.Constraint("Horizontal", 1))
sketch25.addConstraint(Sketcher.Constraint("Horizontal", 3))
sketch25.addConstraint(Sketcher.Constraint("Equal", 0, 2))
sketch25.addConstraint(Sketcher.Constraint("DistanceY", 0, 2, -1, 1, 62.2))
sketch25.addConstraint(Sketcher.Constraint("DistanceX", 1, 1, 1, 2, 2.925))
sketch25.addConstraint(Sketcher.Constraint("DistanceX", 0, 2, -1, 1, 1.4625))
sketch25.addConstraint(Sketcher.Constraint("DistanceX", 3, 2, 3, 1, 2.365606))
sketch25.addConstraint(Sketcher.Constraint("Distance", 0, 6.618495))
pad25 = body25.newObject("PartDesign::Pad", "Pad024")
pad25.Profile = sketch25
pad25.setExpression("Length", "Params.pad25_length")
body26 = doc.addObject("PartDesign::Body", "Body025")

# Sketch on XY plane
sketch26 = body26.newObject("Sketcher::SketchObject", "Sketch025")
sketch26.AttachmentSupport = (doc.getObject("XY_Plane025"), [""])
sketch26.MapMode = "FlatFace"
sketch26.AttachmentOffset = App.Placement(Vector(0, 0, -15), App.Rotation())
add_polygon(sketch26, [(22.44279, -40.497052), (26.575663, -48.396004), (28.624337, -47.213201), (23.850081, -39.684552)])  # lines 0-3
sketch26.addConstraint(Sketcher.Constraint("Parallel", 1, 3))
sketch26.addConstraint(Sketcher.Constraint("Equal", 0, 2))
sketch26.addConstraint(Sketcher.Constraint("Angle", 1, Q("30 deg")))
sketch26.addConstraint(Sketcher.Constraint("Distance", 3, 1.625))
sketch26.addConstraint(Sketcher.Constraint("DistanceY", 1, 2, -1, 1, 47.213201))
sketch26.addConstraint(Sketcher.Constraint("DistanceX", -1, 1, 2, 2, 23.850081))
sketch26.addConstraint(Sketcher.Constraint("DistanceY", 2, 2, -1, 1, 39.684552))
sketch26.addConstraint(Sketcher.Constraint("DistanceX", 2, 2, 0, 2, 2.725582))
pad26 = body26.newObject("PartDesign::Pad", "Pad025")
pad26.Profile = sketch26
pad26.setExpression("Length", "Params.pad26_length")
body27 = doc.addObject("PartDesign::Body", "Body026")

# Sketch on XY plane
sketch27 = body27.newObject("Sketcher::SketchObject", "Sketch026")
sketch27.AttachmentSupport = (doc.getObject("XY_Plane026"), [""])
sketch27.MapMode = "FlatFace"
sketch27.AttachmentOffset = App.Placement(Vector(0, 0, -15), App.Rotation())
add_polygon(sketch27, [(32.901095, -44.820508), (36.704682, -50.236891), (39.02524, -48.456264), (34.777856, -43.380418)])  # lines 0-3
sketch27.addConstraint(Sketcher.Constraint("Parallel", 1, 3))
sketch27.addConstraint(Sketcher.Constraint("Equal", 0, 2))
sketch27.addConstraint(Sketcher.Constraint("Angle", 1, Q("37.5 deg")))
sketch27.addConstraint(Sketcher.Constraint("Distance", 1, 2.925))
sketch27.addConstraint(Sketcher.Constraint("DistanceX", -1, 1, 0, 2, 36.704682))
sketch27.addConstraint(Sketcher.Constraint("DistanceY", 0, 2, -1, 1, 50.236891))
sketch27.addConstraint(Sketcher.Constraint("DistanceY", 2, 2, -1, 1, 43.380418))
sketch27.addConstraint(Sketcher.Constraint("DistanceY", 3, 2, -1, 1, 44.820508))
pad27 = body27.newObject("PartDesign::Pad", "Pad026")
pad27.Profile = sketch27
pad27.setExpression("Length", "Params.pad27_length")
body28 = doc.addObject("PartDesign::Body", "Body027")

# Sketch on XY plane
sketch28 = body28.newObject("Sketcher::SketchObject", "Sketch027")
sketch28.AttachmentSupport = (doc.getObject("XY_Plane027"), [""])
sketch28.MapMode = "FlatFace"
sketch28.AttachmentOffset = App.Placement(Vector(0, 0, -15), App.Rotation())
add_polygon(sketch28, [(27.536714, -37.221222), (32.66525, -44.513149), (34.542012, -43.07306), (28.825913, -36.231985)])  # lines 0-3
sketch28.addConstraint(Sketcher.Constraint("Parallel", 1, 3))
sketch28.addConstraint(Sketcher.Constraint("Equal", 0, 2))
sketch28.addConstraint(Sketcher.Constraint("Angle", 1, Q("37.5 deg")))
sketch28.addConstraint(Sketcher.Constraint("Distance", 3, 1.625))
sketch28.addConstraint(Sketcher.Constraint("DistanceX", 2, 2, 1, 2, 5.716098))
sketch28.addConstraint(Sketcher.Constraint("DistanceX", -1, 1, 0, 2, 32.66525))
sketch28.addConstraint(Sketcher.Constraint("DistanceY", 0, 2, -1, 1, 44.513149))
sketch28.addConstraint(Sketcher.Constraint("DistanceX", -1, 1, 1, 2, 34.542012))
pad28 = body28.newObject("PartDesign::Pad", "Pad027")
pad28.Profile = sketch28
pad28.setExpression("Length", "Params.pad28_length")
body29 = doc.addObject("PartDesign::Body", "Body028")

# Sketch on XY plane
sketch29 = body29.newObject("Sketcher::SketchObject", "Sketch028")
sketch29.AttachmentSupport = (doc.getObject("XY_Plane028"), [""])
sketch29.MapMode = "FlatFace"
sketch29.AttachmentOffset = App.Placement(Vector(0, 0, -15), App.Rotation())
add_polygon(sketch29, [(38.469872, -40.142608), (42.947898, -45.016185), (45.016185, -42.947898), (40.142608, -38.469872)])  # lines 0-3
sketch29.addConstraint(Sketcher.Constraint("Parallel", 1, 3))
sketch29.addConstraint(Sketcher.Constraint("Equal", 0, 2))
sketch29.addConstraint(Sketcher.Constraint("Angle", 1, Q("45 deg")))
sketch29.addConstraint(Sketcher.Constraint("Distance", 1, 2.925))
sketch29.addConstraint(Sketcher.Constraint("DistanceX", -1, 1, 0, 2, 42.947898))
sketch29.addConstraint(Sketcher.Constraint("DistanceY", 1, 2, -1, 1, 42.947898))
sketch29.addConstraint(Sketcher.Constraint("DistanceY", 2, 2, -1, 1, 38.469872))
sketch29.addConstraint(Sketcher.Constraint("DistanceX", 2, 2, 0, 2, 2.80529))
pad29 = body29.newObject("PartDesign::Pad", "Pad028")
pad29.Profile = sketch29
pad29.setExpression("Length", "Params.pad29_length")
body30 = doc.addObject("PartDesign::Body", "Body029")

# Sketch on XY plane
sketch30 = body30.newObject("Sketcher::SketchObject", "Sketch029")
sketch30.AttachmentSupport = (doc.getObject("XY_Plane029"), [""])
sketch30.MapMode = "FlatFace"
sketch30.AttachmentOffset = App.Placement(Vector(0, 0, -15), App.Rotation())
add_polygon(sketch30, [(44.505189, -12.766291), (53.012974, -15.429311), (53.625238, -13.144311), (44.92577, -11.196662)])  # lines 0-3
sketch30.addConstraint(Sketcher.Constraint("Parallel", 1, 3))
sketch30.addConstraint(Sketcher.Constraint("Equal", 0, 2))
sketch30.addConstraint(Sketcher.Constraint("Angle", 1, Q("75 deg")))
sketch30.addConstraint(Sketcher.Constraint("Distance", 3, 1.625))
sketch30.addConstraint(Sketcher.Constraint("DistanceY", 0, 2, 1, 2, 2.285))
sketch30.addConstraint(Sketcher.Constraint("DistanceY", 0, 2, -1, 1, 15.429311))
sketch30.addConstraint(Sketcher.Constraint("DistanceX", -1, 1, 2, 2, 44.92577))
sketch30.addConstraint(Sketcher.Constraint("DistanceY", 2, 2, -1, 1, 11.196662))
pad30 = body30.newObject("PartDesign::Pad", "Pad029")
pad30.Profile = sketch30
pad30.setExpression("Length", "Params.pad30_length")
body31 = doc.addObject("PartDesign::Body", "Body030")

# Sketch on XY plane
sketch31 = body31.newObject("Sketcher::SketchObject", "Sketch030")
sketch31.AttachmentSupport = (doc.getObject("XY_Plane030"), [""])
sketch31.MapMode = "FlatFace"
sketch31.AttachmentOffset = App.Placement(Vector(0, 0, -15), App.Rotation())
add_polygon(sketch31, [(54.957473, -8.428298), (61.476976, -9.568717), (61.858765, -6.668741), (55.266246, -6.08293)])  # lines 0-3
sketch31.addConstraint(Sketcher.Constraint("Parallel", 1, 3))
sketch31.addConstraint(Sketcher.Constraint("Equal", 0, 2))
sketch31.addConstraint(Sketcher.Constraint("Angle", 1, Q("82.5 deg")))
sketch31.addConstraint(Sketcher.Constraint("Distance", 1, 2.925))
sketch31.addConstraint(Sketcher.Constraint("DistanceY", 1, 2, -1, 1, 6.668741))
sketch31.addConstraint(Sketcher.Constraint("DistanceY", 2, 2, -1, 1, 6.08293))
sketch31.addConstraint(Sketcher.Constraint("DistanceX", 2, 2, 1, 2, 6.592519))
sketch31.addConstraint(Sketcher.Constraint("DistanceX", -1, 1, 0, 2, 61.476976))
pad31 = body31.newObject("PartDesign::Pad", "Pad030")
pad31.Profile = sketch31
pad31.setExpression("Length", "Params.pad31_length")
body32 = doc.addObject("PartDesign::Body", "Body031")

# Sketch on XY plane
sketch32 = body32.newObject("Sketcher::SketchObject", "Sketch031")
sketch32.AttachmentSupport = (doc.getObject("XY_Plane031"), [""])
sketch32.MapMode = "FlatFace"
sketch32.AttachmentOffset = App.Placement(Vector(0, 0, -15), App.Rotation())
add_polygon(sketch32, [(45.790776, -6.847981), (54.57337, -8.37773), (54.882143, -6.032362), (46.002881, -5.236883)])  # lines 0-3
sketch32.addConstraint(Sketcher.Constraint("Parallel", 1, 3))
sketch32.addConstraint(Sketcher.Constraint("Equal", 0, 2))
sketch32.addConstraint(Sketcher.Constraint("Angle", 1, Q("82.5 deg")))
sketch32.addConstraint(Sketcher.Constraint("Distance", 3, 1.625))
sketch32.addConstraint(Sketcher.Constraint("DistanceX", -1, 1, 0, 2, 54.57337))
sketch32.addConstraint(Sketcher.Constraint("DistanceY", 0, 2, -1, 1, 8.37773))
sketch32.addConstraint(Sketcher.Constraint("DistanceY", 1, 2, -1, 1, 6.032362))
sketch32.addConstraint(Sketcher.Constraint("DistanceX", -1, 1, 2, 2, 46.002881))
pad32 = body32.newObject("PartDesign::Pad", "Pad031")
pad32.Profile = sketch32
pad32.setExpression("Length", "Params.pad32_length")

doc.recompute()
